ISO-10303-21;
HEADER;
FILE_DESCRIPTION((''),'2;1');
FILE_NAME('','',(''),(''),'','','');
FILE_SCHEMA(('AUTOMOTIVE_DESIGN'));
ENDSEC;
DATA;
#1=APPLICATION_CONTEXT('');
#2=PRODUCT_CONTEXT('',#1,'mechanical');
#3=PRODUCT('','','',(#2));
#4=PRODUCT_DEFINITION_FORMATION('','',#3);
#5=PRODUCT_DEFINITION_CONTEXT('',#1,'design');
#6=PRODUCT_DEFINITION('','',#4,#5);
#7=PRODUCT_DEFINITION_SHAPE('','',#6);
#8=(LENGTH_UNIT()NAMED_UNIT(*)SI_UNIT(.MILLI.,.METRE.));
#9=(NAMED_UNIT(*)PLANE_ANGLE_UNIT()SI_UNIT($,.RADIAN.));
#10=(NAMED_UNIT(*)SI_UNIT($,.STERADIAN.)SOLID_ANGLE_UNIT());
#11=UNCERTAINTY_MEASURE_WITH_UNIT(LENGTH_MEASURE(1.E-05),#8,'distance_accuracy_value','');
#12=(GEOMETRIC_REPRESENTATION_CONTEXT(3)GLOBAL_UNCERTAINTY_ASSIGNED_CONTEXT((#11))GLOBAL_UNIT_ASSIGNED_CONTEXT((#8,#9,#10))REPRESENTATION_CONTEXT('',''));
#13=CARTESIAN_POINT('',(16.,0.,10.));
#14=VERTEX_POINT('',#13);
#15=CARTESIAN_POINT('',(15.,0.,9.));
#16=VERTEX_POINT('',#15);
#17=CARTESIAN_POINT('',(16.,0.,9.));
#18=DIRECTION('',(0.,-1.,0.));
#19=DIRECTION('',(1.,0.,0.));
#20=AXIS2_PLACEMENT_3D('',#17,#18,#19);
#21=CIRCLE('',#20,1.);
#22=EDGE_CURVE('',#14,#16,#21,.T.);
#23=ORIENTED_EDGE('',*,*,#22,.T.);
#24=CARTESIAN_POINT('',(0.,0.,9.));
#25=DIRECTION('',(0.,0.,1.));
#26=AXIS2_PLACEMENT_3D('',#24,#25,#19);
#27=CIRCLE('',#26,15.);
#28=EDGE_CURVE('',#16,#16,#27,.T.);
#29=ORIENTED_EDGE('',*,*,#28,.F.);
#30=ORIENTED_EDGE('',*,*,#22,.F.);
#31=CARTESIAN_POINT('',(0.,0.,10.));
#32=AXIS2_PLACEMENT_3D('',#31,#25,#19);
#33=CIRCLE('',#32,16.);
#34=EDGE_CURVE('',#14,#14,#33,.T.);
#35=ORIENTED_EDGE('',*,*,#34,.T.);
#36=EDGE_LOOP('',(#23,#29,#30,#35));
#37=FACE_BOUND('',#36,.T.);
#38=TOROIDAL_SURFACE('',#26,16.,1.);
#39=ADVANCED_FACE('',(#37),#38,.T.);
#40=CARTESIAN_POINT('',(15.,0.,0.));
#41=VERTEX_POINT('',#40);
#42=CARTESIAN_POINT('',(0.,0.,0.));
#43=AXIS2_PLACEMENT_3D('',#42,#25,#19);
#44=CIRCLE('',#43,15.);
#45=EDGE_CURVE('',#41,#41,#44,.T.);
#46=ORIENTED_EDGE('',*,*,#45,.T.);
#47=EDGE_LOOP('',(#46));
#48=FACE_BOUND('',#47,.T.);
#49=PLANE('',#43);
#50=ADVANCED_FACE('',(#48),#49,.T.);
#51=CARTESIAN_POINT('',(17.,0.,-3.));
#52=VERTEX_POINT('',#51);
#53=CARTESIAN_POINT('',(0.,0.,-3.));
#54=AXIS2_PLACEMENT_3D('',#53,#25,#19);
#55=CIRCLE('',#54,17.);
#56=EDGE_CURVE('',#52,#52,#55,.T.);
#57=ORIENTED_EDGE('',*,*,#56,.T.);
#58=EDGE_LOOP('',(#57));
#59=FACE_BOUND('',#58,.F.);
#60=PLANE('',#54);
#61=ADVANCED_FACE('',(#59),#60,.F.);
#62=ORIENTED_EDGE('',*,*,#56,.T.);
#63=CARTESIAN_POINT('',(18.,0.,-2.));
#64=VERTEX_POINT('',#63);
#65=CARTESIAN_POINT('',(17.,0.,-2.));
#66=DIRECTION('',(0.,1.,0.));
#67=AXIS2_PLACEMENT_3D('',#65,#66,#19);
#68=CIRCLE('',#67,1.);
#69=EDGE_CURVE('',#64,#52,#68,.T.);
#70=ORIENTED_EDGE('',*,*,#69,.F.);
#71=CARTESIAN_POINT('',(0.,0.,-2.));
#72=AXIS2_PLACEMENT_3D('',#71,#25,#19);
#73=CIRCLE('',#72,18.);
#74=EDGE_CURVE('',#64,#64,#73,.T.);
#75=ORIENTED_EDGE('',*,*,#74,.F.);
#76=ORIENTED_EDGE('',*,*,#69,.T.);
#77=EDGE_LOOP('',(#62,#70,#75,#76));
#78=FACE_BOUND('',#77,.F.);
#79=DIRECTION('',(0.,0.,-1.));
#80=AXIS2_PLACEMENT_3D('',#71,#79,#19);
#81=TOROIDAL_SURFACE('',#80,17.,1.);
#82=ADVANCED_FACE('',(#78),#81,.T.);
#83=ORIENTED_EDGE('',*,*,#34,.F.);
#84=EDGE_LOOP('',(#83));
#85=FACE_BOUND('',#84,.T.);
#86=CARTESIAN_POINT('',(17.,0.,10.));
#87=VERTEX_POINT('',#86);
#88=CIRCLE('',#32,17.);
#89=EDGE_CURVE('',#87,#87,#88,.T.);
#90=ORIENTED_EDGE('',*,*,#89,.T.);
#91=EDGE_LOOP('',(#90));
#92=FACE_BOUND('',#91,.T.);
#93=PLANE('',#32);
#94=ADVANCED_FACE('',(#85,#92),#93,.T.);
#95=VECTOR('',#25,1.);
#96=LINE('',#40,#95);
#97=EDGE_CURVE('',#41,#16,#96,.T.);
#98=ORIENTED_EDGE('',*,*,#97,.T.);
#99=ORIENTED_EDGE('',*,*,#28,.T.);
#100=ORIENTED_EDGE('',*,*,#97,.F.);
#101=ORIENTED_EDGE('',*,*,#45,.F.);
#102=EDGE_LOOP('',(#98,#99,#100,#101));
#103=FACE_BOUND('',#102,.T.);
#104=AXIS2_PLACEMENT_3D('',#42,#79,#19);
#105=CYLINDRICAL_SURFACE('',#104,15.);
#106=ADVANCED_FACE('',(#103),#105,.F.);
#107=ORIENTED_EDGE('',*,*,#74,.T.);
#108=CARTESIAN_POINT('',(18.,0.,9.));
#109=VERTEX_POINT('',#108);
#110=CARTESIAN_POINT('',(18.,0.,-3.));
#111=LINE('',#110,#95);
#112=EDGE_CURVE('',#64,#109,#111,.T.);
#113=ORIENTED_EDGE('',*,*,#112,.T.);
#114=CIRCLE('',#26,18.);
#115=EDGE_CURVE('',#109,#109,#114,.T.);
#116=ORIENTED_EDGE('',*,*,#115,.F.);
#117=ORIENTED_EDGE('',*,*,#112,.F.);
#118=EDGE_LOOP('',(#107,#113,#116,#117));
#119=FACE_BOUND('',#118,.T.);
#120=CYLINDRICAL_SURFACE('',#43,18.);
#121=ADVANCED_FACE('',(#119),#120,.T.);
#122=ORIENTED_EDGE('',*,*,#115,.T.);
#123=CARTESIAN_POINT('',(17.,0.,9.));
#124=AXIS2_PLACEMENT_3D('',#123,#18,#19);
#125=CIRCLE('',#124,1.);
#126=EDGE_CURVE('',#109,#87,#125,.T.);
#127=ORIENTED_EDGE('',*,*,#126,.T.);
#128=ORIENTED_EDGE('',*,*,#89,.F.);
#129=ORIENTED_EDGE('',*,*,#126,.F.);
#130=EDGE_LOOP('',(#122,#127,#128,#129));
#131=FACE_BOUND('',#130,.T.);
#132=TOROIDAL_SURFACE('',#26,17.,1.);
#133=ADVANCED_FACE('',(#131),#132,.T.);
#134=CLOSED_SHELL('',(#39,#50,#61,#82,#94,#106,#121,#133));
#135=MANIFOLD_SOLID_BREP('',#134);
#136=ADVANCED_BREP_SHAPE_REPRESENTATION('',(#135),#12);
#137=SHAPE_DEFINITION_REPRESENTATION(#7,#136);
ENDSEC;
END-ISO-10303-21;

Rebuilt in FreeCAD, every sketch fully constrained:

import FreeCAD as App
import Part
import Sketcher
from FreeCAD import Vector


def edges_at(feature, points):
    """Names of the edges that pass closest to the given points."""
    edges = feature.Shape.Edges
    near = lambda p: min(range(len(edges)), key=lambda i: edges[i].distToShape(Part.Vertex(*p))[0])
    return sorted({f"Edge{near(p) + 1}" for p in points})

doc = App.newDocument("Part")
body = doc.addObject("PartDesign::Body", "Body")

# Sketch on XY plane
sketch1 = body.newObject("Sketcher::SketchObject", "Sketch")
sketch1.AttachmentSupport = (doc.getObject("XY_Plane"), [""])
sketch1.MapMode = "FlatFace"
sketch1.addGeometry([
    Part.Circle(Vector(0, 0, 0), Vector(0, 0, 1), 18),
    Part.Circle(Vector(0, 0, 0), Vector(0, 0, 1), 15),
], False)
sketch1.addConstraint([
    Sketcher.Constraint("Coincident", 0, 3, -1, 1),
    Sketcher.Constraint("Coincident", 1, 3, -1, 1),
    Sketcher.Constraint("Diameter", 0, 36.0),
    Sketcher.Constraint("Diameter", 1, 30.0),
])
pad1 = body.newObject("PartDesign::Pad", "Pad")
pad1.Profile = sketch1
pad1.Length = 10

# Sketch on XY plane
sketch2 = body.newObject("Sketcher::SketchObject", "Sketch001")
sketch2.AttachmentSupport = (doc.getObject("XY_Plane"), [""])
sketch2.MapMode = "FlatFace"
sketch2.addGeometry(Part.Circle(Vector(0, 0, 0), Vector(0, 0, 1), 18), False)
sketch2.addConstraint([
    Sketcher.Constraint("Coincident", 0, 3, -1, 1),
    Sketcher.Constraint("Diameter", 0, 36.0),
])
pad2 = body.newObject("PartDesign::Pad", "Pad001")
pad2.Profile = sketch2
pad2.Length = 3
pad2.Reversed = True
doc.recompute()

fillet = body.newObject("PartDesign::Fillet", "Fillet")
fillet.Base = (pad2, edges_at(pad2, [(-18, 0, 10), (-15, 0, 10), (-18, 0, -3)]))
fillet.Radius = 1

doc.recompute()
